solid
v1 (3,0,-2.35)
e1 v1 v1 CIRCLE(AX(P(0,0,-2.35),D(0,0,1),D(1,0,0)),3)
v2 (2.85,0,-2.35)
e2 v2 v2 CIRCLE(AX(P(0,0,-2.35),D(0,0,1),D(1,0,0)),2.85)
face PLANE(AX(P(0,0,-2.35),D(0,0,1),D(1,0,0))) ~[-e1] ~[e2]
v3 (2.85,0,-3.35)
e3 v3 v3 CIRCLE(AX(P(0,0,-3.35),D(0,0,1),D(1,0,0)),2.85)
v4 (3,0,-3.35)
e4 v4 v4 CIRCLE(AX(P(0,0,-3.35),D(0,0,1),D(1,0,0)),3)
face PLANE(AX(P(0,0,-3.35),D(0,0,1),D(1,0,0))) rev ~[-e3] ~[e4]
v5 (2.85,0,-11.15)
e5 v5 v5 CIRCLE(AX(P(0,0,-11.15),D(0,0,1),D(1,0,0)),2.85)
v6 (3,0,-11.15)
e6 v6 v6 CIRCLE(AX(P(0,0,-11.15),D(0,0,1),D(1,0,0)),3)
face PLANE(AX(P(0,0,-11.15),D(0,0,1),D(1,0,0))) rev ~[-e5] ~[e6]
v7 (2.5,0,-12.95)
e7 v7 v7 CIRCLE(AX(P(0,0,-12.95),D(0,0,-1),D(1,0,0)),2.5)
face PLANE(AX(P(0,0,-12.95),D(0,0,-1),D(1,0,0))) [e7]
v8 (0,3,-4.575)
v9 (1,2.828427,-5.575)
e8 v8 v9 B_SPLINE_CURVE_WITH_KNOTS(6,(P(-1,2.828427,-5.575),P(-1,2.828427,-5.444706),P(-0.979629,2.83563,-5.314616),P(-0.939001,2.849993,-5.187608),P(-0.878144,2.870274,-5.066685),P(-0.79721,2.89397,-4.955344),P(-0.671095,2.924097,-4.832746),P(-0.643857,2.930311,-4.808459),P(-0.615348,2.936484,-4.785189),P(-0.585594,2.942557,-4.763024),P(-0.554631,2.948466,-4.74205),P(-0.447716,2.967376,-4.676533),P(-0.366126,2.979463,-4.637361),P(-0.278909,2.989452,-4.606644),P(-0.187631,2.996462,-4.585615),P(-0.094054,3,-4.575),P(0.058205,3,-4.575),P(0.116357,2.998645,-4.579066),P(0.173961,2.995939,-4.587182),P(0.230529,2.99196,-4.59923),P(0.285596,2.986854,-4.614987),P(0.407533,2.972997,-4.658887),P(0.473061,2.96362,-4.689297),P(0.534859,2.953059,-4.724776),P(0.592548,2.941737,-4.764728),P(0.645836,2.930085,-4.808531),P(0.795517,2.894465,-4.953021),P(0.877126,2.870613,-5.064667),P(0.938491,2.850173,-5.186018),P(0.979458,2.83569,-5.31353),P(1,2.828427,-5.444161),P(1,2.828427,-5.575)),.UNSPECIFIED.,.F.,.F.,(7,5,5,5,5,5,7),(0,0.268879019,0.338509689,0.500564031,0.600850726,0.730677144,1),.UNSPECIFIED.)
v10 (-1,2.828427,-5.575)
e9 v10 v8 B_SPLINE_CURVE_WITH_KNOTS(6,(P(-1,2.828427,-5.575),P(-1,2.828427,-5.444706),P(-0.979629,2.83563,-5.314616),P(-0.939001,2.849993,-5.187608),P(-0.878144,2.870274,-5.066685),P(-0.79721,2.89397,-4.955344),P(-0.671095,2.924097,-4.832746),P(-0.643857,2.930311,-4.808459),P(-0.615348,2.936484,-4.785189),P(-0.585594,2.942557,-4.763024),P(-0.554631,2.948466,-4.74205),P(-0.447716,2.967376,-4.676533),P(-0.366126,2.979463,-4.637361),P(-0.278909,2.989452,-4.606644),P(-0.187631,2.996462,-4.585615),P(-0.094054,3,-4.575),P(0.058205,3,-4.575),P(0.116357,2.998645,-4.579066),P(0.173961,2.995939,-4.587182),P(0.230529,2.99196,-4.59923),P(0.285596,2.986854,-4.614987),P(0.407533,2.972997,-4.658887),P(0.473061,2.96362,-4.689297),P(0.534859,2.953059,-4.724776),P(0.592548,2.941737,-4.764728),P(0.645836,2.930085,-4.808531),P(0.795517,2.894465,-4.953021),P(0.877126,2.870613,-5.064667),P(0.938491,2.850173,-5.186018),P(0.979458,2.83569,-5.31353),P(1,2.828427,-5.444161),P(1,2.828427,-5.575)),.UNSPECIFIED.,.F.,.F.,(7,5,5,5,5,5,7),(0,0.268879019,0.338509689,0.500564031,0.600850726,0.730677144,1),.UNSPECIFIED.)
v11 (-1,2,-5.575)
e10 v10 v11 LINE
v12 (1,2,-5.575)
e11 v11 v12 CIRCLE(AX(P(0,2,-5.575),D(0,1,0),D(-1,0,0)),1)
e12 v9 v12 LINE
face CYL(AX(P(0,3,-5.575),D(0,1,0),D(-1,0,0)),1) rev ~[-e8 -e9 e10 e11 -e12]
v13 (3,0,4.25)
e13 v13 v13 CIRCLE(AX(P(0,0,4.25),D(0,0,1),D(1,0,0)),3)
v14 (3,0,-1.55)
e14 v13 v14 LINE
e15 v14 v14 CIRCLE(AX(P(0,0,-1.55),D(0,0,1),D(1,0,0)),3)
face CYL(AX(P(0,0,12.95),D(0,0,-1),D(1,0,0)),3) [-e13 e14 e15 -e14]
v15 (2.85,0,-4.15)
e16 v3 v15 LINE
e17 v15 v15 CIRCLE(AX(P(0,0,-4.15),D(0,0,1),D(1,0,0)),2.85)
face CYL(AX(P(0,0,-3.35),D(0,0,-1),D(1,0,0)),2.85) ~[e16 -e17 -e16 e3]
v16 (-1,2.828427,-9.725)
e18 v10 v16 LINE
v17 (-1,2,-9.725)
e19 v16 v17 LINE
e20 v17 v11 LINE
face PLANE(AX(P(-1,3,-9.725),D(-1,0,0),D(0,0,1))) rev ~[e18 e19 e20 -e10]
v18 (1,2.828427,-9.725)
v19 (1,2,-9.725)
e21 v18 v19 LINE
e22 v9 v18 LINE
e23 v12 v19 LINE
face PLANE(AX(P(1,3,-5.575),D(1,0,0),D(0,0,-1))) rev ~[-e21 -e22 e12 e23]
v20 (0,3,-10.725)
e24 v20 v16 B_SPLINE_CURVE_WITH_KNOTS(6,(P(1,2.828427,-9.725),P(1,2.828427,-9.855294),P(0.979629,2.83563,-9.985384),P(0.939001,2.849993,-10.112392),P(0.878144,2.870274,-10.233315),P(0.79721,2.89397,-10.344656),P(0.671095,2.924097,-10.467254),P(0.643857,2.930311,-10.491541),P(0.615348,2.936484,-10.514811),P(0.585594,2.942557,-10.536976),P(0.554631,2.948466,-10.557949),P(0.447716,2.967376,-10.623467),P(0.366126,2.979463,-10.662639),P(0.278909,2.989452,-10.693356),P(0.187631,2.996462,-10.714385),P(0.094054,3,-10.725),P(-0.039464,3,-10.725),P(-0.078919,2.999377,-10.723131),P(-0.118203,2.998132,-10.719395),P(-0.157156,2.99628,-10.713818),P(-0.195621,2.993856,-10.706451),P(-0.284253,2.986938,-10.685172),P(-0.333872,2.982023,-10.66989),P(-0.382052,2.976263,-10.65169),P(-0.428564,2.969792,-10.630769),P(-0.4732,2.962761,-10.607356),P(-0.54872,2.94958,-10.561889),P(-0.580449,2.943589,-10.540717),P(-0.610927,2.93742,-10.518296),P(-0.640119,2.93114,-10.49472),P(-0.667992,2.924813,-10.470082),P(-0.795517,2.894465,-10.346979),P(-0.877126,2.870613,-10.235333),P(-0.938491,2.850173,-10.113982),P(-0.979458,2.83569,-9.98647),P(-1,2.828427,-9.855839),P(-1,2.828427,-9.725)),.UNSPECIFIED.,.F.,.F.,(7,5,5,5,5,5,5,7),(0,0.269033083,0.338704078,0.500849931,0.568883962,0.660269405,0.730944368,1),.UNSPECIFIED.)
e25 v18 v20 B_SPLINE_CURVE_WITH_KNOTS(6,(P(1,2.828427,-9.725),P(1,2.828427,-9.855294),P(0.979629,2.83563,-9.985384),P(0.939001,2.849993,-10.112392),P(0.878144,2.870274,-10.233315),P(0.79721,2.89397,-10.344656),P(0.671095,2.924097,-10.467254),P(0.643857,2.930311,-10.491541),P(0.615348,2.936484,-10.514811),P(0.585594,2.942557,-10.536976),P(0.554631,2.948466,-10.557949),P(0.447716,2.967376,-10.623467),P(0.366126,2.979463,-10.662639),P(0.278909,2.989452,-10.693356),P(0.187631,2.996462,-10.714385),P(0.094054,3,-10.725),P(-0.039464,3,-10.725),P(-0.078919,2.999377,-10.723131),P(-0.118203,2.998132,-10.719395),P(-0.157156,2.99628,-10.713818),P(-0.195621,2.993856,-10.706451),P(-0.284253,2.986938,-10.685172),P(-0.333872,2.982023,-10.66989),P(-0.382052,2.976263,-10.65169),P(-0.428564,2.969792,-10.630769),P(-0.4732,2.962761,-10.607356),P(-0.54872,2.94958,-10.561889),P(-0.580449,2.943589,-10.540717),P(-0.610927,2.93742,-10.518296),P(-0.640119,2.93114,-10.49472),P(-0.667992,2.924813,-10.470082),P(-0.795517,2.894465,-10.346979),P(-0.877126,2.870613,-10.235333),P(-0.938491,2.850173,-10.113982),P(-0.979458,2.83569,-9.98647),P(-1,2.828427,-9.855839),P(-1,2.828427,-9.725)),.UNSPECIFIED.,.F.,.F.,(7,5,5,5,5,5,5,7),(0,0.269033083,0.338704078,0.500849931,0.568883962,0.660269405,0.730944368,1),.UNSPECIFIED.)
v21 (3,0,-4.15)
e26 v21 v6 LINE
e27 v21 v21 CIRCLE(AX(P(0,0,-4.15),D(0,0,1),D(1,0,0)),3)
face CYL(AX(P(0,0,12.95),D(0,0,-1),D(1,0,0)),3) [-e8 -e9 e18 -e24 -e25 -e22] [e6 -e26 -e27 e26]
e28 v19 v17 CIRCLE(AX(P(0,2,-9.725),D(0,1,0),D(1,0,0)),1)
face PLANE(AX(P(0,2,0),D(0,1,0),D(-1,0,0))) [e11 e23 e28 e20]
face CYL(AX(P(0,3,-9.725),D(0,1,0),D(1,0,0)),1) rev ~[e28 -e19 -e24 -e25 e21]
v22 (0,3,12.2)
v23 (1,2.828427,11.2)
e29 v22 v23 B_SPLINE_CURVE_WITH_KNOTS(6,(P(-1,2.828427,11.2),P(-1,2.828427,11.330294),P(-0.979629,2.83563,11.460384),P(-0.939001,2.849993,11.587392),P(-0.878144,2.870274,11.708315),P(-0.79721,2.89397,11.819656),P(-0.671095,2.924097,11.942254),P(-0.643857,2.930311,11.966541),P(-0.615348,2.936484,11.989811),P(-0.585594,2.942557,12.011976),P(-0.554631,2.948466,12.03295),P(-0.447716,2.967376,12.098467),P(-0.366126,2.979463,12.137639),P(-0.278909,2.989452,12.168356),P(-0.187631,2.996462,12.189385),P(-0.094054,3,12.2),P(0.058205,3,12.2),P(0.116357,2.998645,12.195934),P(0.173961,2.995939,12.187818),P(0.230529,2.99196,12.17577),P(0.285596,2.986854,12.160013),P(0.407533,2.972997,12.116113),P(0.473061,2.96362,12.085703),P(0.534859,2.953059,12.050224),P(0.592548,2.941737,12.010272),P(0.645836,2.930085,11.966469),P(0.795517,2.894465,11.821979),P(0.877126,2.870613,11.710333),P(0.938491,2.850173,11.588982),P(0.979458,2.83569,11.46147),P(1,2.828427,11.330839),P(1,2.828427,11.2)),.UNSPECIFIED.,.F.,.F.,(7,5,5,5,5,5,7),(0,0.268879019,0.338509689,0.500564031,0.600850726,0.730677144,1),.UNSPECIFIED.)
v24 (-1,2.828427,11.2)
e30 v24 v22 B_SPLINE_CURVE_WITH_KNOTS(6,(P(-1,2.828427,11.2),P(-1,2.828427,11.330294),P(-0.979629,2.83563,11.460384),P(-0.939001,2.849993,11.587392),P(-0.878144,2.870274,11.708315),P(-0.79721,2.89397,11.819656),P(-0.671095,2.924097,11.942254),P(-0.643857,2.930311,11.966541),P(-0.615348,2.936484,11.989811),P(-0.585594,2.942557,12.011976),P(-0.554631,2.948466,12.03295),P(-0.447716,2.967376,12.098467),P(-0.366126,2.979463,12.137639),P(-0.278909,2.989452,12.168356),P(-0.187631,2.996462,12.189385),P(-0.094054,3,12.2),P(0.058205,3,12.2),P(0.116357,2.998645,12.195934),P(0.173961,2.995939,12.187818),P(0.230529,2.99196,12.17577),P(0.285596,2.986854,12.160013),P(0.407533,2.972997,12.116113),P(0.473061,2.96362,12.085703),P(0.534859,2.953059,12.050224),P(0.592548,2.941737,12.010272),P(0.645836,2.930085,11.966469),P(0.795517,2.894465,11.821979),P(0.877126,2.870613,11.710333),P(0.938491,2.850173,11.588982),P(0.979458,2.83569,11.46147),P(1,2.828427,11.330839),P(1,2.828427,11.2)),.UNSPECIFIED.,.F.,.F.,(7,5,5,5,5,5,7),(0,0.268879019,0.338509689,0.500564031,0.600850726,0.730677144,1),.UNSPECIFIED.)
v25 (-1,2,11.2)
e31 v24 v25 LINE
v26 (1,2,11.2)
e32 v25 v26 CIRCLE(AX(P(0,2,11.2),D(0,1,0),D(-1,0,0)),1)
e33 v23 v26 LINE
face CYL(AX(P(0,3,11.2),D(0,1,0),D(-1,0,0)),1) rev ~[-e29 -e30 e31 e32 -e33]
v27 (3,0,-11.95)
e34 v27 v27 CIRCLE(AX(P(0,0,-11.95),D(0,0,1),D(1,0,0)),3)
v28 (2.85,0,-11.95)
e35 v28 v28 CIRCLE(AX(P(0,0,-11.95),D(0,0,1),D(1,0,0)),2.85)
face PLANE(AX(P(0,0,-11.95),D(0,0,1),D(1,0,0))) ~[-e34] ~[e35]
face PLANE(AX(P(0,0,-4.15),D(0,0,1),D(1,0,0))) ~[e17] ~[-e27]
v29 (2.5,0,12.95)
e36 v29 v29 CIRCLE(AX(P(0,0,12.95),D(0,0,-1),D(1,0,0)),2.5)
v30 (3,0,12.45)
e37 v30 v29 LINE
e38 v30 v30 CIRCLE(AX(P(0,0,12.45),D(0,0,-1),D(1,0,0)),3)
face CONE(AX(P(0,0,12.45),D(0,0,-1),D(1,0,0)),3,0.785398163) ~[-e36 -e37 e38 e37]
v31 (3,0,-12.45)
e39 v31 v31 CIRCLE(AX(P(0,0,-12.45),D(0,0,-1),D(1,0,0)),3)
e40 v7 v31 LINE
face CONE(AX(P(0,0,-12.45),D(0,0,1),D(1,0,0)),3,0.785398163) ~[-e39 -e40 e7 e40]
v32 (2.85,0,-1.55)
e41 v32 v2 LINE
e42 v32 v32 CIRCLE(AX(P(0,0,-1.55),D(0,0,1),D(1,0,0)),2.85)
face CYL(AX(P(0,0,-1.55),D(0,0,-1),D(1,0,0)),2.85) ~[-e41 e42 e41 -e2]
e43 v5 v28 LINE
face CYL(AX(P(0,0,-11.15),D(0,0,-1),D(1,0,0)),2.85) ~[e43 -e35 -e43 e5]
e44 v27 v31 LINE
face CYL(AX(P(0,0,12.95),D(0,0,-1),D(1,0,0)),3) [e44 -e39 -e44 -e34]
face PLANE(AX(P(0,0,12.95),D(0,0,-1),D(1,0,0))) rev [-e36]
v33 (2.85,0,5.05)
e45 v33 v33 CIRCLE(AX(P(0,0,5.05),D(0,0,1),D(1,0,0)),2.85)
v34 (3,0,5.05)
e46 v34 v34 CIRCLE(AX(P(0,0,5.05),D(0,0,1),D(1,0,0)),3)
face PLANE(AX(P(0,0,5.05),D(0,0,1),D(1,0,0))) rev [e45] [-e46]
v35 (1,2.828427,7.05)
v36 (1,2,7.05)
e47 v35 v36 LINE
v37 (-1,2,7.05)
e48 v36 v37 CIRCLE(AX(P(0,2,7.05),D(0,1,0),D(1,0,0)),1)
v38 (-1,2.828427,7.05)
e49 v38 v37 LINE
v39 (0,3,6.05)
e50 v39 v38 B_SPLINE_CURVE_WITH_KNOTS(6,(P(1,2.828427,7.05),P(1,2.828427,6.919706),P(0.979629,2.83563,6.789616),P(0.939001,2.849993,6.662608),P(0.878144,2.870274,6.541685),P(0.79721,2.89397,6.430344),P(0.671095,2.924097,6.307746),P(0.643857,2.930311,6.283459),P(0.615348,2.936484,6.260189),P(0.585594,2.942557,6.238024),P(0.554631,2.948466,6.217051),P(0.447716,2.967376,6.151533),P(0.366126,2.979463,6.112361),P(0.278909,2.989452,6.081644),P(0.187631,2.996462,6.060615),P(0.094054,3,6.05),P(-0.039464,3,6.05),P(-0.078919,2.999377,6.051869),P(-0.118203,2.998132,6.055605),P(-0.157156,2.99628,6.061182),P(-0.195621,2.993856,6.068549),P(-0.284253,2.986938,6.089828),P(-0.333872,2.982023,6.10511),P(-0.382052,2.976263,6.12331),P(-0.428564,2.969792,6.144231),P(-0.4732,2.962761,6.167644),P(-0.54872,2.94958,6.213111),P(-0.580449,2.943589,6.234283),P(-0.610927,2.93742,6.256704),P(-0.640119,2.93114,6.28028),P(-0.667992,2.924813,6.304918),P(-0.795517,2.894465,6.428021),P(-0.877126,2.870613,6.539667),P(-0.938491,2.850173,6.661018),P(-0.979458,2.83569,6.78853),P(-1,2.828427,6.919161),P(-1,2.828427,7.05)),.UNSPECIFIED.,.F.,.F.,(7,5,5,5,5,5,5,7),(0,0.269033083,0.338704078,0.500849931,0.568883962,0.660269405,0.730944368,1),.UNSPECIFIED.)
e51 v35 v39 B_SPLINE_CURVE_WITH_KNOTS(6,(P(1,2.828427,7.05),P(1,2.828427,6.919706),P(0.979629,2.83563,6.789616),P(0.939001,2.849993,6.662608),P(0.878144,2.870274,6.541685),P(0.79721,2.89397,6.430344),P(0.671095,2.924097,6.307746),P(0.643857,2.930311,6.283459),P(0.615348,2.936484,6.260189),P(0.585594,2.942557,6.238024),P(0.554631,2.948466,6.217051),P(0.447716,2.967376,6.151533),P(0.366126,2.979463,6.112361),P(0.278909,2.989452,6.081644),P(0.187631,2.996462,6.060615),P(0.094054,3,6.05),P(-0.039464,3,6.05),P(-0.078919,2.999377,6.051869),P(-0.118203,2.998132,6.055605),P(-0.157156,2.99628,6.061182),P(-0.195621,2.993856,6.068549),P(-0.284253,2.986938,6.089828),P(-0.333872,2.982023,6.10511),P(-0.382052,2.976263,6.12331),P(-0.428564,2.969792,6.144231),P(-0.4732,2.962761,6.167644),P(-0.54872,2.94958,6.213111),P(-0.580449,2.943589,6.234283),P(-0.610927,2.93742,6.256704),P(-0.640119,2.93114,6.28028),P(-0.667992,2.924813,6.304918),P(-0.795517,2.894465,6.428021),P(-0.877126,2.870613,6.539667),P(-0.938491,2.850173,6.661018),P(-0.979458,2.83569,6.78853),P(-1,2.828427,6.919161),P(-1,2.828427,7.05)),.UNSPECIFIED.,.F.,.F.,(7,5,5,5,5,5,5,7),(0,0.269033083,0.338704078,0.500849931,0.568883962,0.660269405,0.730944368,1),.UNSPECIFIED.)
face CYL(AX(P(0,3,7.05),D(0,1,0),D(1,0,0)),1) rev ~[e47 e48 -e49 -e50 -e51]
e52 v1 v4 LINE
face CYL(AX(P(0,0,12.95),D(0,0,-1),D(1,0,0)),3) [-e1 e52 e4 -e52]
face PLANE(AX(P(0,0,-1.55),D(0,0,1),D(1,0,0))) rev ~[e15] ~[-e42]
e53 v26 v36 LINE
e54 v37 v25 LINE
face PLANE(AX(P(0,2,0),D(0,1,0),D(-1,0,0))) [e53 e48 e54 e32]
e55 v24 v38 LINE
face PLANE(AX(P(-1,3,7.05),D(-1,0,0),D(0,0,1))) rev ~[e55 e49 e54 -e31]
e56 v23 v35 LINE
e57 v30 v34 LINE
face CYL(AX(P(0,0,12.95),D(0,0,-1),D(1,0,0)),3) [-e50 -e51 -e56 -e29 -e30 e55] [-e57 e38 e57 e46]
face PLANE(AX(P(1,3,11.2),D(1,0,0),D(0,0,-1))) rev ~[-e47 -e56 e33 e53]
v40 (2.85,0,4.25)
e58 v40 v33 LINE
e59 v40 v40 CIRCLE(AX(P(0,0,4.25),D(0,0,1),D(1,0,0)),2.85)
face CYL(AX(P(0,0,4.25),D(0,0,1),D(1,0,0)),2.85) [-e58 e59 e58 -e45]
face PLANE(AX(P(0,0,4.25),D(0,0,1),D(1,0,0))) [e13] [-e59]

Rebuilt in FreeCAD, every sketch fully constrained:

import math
import FreeCAD as App
import Part
import Sketcher

V = App.Vector


def edges_at(feature, points):
    """Names of the edges that pass closest to the given points."""
    edges = feature.Shape.Edges
    near = lambda p: min(range(len(edges)), key=lambda i: edges[i].distToShape(Part.Vertex(*p))[0])
    return sorted({f"Edge{near(p) + 1}" for p in points})


def add_polygon(sketch, points):
    """Adds a closed chain of lines whose ends are joined by coincident constraints."""
    first, n = sketch.GeometryCount, len(points)
    for a, b in zip(points, points[1:] + points[:1]):
        sketch.addGeometry(Part.LineSegment(App.Vector(*a, 0), App.Vector(*b, 0)), False)
    for i in range(n):
        sketch.addConstraint(Sketcher.Constraint("Coincident", first + i, 2, first + (i + 1) % n, 1))

doc = App.newDocument("Part")
body = doc.addObject("PartDesign::Body", "Body")

sketch1 = doc.addObject("Sketcher::SketchObject", "Sketch")
body.addObject(sketch1)
sketch1.AttachmentSupport = (doc.XZ_Plane, [""])
sketch1.MapMode = "FlatFace"
add_polygon(sketch1, [(0, -12.9), (0, 12.9), (3, 12.9), (3, -12.9)])
sketch1.addConstraint([
    Sketcher.Constraint("Vertical", 0),
    Sketcher.Constraint("Horizontal", 1),
    Sketcher.Constraint("Vertical", 2),
    Sketcher.Constraint("Horizontal", 3),
    Sketcher.Constraint("Symmetric", 0, 2, 3, 2, -1, 1),
    Sketcher.Constraint("DistanceX", 1, 1, 1, 2, 3.0),
    Sketcher.Constraint("DistanceY", 0, 1, 0, 2, 25.9),
])
revolution = doc.addObject("PartDesign::Revolution", "Revolution")
body.addObject(revolution)
revolution.Profile = sketch1
revolution.ReferenceAxis = (sketch1, ["V_Axis"])
revolution.Angle = 360

sketch2 = doc.addObject("Sketcher::SketchObject", "Sketch001")
body.addObject(sketch2)
sketch2.AttachmentSupport = (doc.XZ_Plane, [""])
sketch2.MapMode = "FlatFace"
add_polygon(sketch2, [(3, 5.05), (3, 4.25), (2.85, 4.25), (2.85, 5.05)])
add_polygon(sketch2, [(2.85, -11.15), (3, -11.15), (3, -11.95), (2.85, -11.95)])
add_polygon(sketch2, [(2.85, -3.35), (3, -3.35), (3, -4.15), (2.85, -4.15)])
add_polygon(sketch2, [(2.85, -1.55), (3, -1.55), (3, -2.35), (2.85, -2.35)])
sketch2.addConstraint([
    Sketcher.Constraint("Vertical", 0),
    Sketcher.Constraint("Horizontal", 1),
    Sketcher.Constraint("Vertical", 2),
    Sketcher.Constraint("Horizontal", 3),
    Sketcher.Constraint("Horizontal", 4),
    Sketcher.Constraint("Vertical", 5),
    Sketcher.Constraint("Horizontal", 6),
    Sketcher.Constraint("Vertical", 7),
    Sketcher.Constraint("Horizontal", 8),
    Sketcher.Constraint("Vertical", 9),
    Sketcher.Constraint("Horizontal", 10),
    Sketcher.Constraint("Vertical", 11),
    Sketcher.Constraint("Horizontal", 12),
    Sketcher.Constraint("Vertical", 13),
    Sketcher.Constraint("Horizontal", 14),
    Sketcher.Constraint("Vertical", 15),
    Sketcher.Constraint("Vertical", 3, 2, 4, 2),
    Sketcher.Constraint("Vertical", 2, 2, 6, 2),
    Sketcher.Constraint("Vertical", 5, 2, 8, 2),
    Sketcher.Constraint("Vertical", 7, 2, 10, 2),
    Sketcher.Constraint("Vertical", 9, 2, 12, 2),
    Sketcher.Constraint("Vertical", 11, 2, 14, 2),
    Sketcher.Constraint("Equal", 2, 5),
    Sketcher.Constraint("Equal", 7, 9),
    Sketcher.Constraint("Equal", 11, 13),
    Sketcher.Constraint("DistanceY", 0, 2, 0, 1, 0.8),
    Sketcher.Constraint("DistanceY", 4, 2, 9, 2, 7.0),
    Sketcher.Constraint("DistanceY", 8, 2, 13, 2, 1.0),
    Sketcher.Constraint("DistanceY", 12, 2, 0, 2, 5.8),
    Sketcher.Constraint("DistanceX", -1, 1, 1, 2, 2.85),
    Sketcher.Constraint("DistanceX", -1, 1, 0, 2, 3.0),
    Sketcher.Constraint("DistanceY", -1, 1, 0, 2, 4.25),
])
groove = doc.addObject("PartDesign::Groove", "Groove")
body.addObject(groove)
groove.Profile = sketch2
groove.ReferenceAxis = (sketch2, ["V_Axis"])
groove.Angle = 360

sketch3 = doc.addObject("Sketcher::SketchObject", "Sketch002")
body.addObject(sketch3)
sketch3.AttachmentSupport = (doc.XZ_Plane, [""])
sketch3.MapMode = "FlatFace"
sketch3.AttachmentOffset = App.Placement(V(0, 0, -3), App.Rotation())
sketch3.addGeometry([
    Part.ArcOfCircle(Part.Circle(V(0, -9.7, 0), V(0, 0, 1), 1), math.radians(180), math.radians(360)),
    Part.LineSegment(V(-1, -9.7, 0), V(-1, -5.6, 0)),
    Part.ArcOfCircle(Part.Circle(V(0, -5.6, 0), V(0, 0, 1), 1), math.radians(0), math.radians(180)),
    Part.LineSegment(V(1, -5.6, 0), V(1, -9.7, 0)),
    Part.ArcOfCircle(Part.Circle(V(0, 7, 0), V(0, 0, 1), 1), math.radians(180), math.radians(360)),
    Part.LineSegment(V(-1, 7, 0), V(-1, 11.2, 0)),
    Part.ArcOfCircle(Part.Circle(V(0, 11.2, 0), V(0, 0, 1), 1), math.radians(0), math.radians(180)),
    Part.LineSegment(V(1, 11.2, 0), V(1, 7, 0)),
], False)
sketch3.addConstraint([
    Sketcher.Constraint("Tangent", 0, 1, 1, 1),
    Sketcher.Constraint("Tangent", 1, 2, 2, 2),
    Sketcher.Constraint("Tangent", 2, 1, 3, 1),
    Sketcher.Constraint("Tangent", 3, 2, 0, 2),
    Sketcher.Constraint("Tangent", 4, 1, 5, 1),
    Sketcher.Constraint("Tangent", 5, 2, 6, 2),
    Sketcher.Constraint("Tangent", 6, 1, 7, 1),
    Sketcher.Constraint("Tangent", 7, 2, 4, 2),
    Sketcher.Constraint("Vertical", 1),
    Sketcher.Constraint("Vertical", 3),
    Sketcher.Constraint("Vertical", 5),
    Sketcher.Constraint("Vertical", 7),
    Sketcher.Constraint("Equal", 2, 4),
    Sketcher.Constraint("PointOnObject", 0, 3, -2),
    Sketcher.Constraint("PointOnObject", 4, 3, -2),
    Sketcher.Constraint("Equal", 3, 5),
    Sketcher.Constraint("Radius", 0, 1.0),
    Sketcher.Constraint("DistanceY", 1, 1, 1, 2, 4.15),
    Sketcher.Constraint("DistanceY", -1, 1, 6, 3, 11.2),
    Sketcher.Constraint("DistanceY", 0, 3, -1, 1, 9.725),
])
pocket1 = doc.addObject("PartDesign::Pocket", "Pocket")
body.addObject(pocket1)
pocket1.Profile = sketch3
pocket1.Length = 1
pocket1.Reversed = True
doc.recompute()

chamfer = doc.addObject("PartDesign::Chamfer", "Chamfer")
body.addObject(chamfer)
chamfer.Base = (pocket1, edges_at(pocket1, [(-3, 0, -12.95), (-3, 0, 12.95)]))
chamfer.Size = 0.5

doc.recompute()
